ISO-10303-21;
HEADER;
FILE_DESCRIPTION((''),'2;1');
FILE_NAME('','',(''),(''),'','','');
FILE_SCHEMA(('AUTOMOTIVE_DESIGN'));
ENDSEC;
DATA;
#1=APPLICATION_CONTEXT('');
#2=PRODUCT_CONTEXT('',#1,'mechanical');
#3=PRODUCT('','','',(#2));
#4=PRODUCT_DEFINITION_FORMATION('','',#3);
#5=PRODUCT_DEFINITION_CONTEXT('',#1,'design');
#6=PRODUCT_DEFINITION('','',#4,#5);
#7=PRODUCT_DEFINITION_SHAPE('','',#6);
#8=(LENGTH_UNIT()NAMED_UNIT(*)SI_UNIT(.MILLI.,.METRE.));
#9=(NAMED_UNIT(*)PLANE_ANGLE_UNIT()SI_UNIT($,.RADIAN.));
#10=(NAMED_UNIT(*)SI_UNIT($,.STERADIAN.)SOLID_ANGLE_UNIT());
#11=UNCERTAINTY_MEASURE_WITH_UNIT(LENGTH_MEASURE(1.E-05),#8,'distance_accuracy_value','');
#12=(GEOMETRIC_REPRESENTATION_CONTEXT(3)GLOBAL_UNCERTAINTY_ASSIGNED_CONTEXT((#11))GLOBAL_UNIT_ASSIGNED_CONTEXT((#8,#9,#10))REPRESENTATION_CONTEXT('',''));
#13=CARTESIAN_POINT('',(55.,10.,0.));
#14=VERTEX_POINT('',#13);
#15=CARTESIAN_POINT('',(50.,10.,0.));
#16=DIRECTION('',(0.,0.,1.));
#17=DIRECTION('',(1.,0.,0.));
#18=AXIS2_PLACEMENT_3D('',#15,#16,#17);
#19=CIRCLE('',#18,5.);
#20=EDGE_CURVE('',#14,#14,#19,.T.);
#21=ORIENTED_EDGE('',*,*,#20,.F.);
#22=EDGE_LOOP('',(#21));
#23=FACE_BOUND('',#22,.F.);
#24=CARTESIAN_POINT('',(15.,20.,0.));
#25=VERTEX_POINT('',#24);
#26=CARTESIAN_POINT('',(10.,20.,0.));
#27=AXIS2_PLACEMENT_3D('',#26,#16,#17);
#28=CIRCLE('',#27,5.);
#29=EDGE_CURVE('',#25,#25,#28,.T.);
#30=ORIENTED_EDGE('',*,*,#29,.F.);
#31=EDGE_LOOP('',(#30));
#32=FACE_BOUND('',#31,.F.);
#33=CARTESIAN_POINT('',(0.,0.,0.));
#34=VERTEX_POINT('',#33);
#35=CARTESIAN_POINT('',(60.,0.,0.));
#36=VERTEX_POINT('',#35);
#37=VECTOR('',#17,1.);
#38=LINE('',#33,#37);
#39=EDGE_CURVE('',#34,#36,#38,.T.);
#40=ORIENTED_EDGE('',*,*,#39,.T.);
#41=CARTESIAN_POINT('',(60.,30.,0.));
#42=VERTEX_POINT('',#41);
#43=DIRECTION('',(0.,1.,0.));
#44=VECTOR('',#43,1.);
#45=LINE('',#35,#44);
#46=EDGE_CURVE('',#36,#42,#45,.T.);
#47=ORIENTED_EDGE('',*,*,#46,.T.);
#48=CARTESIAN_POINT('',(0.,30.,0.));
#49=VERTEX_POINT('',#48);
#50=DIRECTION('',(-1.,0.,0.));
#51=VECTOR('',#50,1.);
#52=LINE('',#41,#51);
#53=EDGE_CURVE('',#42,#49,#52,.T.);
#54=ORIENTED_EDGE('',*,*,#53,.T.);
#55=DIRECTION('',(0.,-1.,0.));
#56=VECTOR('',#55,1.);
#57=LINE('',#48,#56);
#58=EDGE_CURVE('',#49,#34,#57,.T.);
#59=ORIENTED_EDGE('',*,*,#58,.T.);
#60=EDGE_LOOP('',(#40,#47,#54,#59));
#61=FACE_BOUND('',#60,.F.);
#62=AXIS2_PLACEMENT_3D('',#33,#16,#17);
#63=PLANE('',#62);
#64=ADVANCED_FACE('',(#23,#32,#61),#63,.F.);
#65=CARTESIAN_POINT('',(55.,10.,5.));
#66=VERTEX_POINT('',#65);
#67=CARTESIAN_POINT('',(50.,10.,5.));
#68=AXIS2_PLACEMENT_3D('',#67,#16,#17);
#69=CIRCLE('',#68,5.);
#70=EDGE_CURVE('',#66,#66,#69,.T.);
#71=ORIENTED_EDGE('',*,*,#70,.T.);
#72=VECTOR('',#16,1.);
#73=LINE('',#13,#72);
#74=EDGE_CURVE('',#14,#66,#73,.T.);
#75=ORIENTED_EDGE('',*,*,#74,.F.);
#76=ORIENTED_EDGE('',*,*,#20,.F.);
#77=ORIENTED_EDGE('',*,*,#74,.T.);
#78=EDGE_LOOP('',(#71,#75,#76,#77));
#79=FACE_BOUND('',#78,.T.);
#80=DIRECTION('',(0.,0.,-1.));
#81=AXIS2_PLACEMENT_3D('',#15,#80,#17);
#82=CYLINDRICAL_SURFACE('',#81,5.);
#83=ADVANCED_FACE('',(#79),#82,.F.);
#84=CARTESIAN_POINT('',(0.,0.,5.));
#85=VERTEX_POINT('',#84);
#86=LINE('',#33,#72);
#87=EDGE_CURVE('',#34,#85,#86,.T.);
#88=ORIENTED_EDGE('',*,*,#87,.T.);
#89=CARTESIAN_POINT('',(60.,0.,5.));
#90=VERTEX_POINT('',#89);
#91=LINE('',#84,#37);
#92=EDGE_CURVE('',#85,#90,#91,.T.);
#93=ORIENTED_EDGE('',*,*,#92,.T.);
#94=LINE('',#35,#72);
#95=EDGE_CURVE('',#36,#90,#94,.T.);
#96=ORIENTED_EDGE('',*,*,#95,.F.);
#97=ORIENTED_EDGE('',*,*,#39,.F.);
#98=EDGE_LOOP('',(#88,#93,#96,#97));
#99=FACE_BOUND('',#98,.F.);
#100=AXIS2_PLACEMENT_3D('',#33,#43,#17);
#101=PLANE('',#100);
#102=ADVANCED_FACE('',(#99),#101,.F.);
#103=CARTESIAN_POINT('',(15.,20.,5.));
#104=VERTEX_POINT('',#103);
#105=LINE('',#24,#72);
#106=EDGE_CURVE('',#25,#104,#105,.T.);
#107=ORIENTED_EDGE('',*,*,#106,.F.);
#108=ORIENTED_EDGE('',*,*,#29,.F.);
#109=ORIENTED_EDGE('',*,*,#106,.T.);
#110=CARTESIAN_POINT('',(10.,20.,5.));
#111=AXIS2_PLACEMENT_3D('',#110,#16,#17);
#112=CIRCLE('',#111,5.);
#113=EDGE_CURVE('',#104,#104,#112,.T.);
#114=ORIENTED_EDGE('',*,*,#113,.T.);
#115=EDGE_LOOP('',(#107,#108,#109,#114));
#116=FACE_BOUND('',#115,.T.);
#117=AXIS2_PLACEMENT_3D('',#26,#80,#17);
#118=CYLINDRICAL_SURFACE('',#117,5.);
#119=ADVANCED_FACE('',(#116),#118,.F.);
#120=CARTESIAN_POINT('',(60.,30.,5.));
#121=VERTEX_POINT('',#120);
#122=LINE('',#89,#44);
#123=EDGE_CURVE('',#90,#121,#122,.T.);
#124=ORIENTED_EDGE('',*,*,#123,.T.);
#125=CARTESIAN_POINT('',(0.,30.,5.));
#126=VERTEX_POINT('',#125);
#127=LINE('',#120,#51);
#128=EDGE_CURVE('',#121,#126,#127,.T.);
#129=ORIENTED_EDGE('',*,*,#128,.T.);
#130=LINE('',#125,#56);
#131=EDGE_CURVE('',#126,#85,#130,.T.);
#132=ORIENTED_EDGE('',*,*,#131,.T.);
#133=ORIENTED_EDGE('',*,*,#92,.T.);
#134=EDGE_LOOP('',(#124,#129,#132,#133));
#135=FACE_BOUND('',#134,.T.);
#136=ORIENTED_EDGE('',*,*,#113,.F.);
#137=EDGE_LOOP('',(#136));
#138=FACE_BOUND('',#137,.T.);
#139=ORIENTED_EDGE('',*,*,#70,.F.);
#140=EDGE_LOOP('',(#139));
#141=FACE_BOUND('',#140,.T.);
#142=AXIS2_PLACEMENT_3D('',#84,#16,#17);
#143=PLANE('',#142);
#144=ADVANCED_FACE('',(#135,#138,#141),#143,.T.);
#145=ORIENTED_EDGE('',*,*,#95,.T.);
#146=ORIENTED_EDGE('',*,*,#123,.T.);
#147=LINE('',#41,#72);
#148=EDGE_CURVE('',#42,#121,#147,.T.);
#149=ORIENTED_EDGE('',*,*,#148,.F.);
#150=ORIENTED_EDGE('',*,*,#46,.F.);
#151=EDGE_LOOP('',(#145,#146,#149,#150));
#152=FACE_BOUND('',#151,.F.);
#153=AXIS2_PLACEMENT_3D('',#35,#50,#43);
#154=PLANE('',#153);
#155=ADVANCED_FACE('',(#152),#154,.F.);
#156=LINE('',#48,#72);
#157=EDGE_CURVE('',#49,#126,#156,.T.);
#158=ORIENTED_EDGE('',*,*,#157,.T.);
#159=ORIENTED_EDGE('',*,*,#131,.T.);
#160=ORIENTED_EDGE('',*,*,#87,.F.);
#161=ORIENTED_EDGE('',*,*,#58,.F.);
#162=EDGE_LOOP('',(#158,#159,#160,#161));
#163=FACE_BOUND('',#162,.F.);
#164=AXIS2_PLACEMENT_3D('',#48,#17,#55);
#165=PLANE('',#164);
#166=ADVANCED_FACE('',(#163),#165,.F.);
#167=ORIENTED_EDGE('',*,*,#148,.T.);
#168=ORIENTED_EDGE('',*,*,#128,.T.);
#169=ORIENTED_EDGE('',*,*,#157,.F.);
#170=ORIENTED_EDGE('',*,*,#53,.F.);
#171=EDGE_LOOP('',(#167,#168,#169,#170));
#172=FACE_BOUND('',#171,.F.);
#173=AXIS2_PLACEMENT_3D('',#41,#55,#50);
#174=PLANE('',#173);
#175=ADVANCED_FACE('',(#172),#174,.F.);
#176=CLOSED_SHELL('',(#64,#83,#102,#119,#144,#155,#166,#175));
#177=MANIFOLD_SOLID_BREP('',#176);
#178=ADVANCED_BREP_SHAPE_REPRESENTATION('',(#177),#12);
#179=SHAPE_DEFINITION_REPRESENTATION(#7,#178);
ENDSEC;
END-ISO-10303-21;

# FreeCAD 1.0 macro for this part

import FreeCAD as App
import Part
import Sketcher
from FreeCAD import Vector


def add_polygon(sketch, points):
    """Adds a closed chain of lines whose ends are joined by coincident constraints."""
    first, n = sketch.GeometryCount, len(points)
    for a, b in zip(points, points[1:] + points[:1]):
        sketch.addGeometry(Part.LineSegment(App.Vector(*a, 0), App.Vector(*b, 0)), False)
    for i in range(n):
        sketch.addConstraint(Sketcher.Constraint("Coincident", first + i, 2, first + (i + 1) % n, 1))

doc = App.newDocument("Part")
params = doc.addObject("Spreadsheet::Sheet", "Params")
for row, (alias, value) in enumerate([
    ("sketch1_diameter", "10 mm"),
    ("sketch1_width", "60 mm"),
    ("sketch1_height", "30 mm"),
    ("pad1_length", "5 mm"),
], start=1):
    params.set(f"A{row}", alias)
    params.set(f"B{row}", "=" + value)
    params.setAlias(f"B{row}", alias)

body = doc.addObject("PartDesign::Body", "Body")

# Sketch on XY plane
sketch1 = body.newObject("Sketcher::SketchObject", "Sketch")
sketch1.AttachmentSupport = (doc.getObject("XY_Plane"), [""])
sketch1.MapMode = "FlatFace"
add_polygon(sketch1, [(0, 30), (0, 0), (60, 0), (60, 30)])  # lines 0-3
sketch1.addGeometry(Part.Circle(Vector(50, 10, 0), Vector(0, 0, 1), 5), False)  # 4
sketch1.addGeometry(Part.Circle(Vector(10, 20, 0), Vector(0, 0, 1), 5), False)  # 5
sketch1.addConstraint(Sketcher.Constraint("Vertical", 0))
sketch1.addConstraint(Sketcher.Constraint("Horizontal", 1))
sketch1.addConstraint(Sketcher.Constraint("Vertical", 2))
sketch1.addConstraint(Sketcher.Constraint("Horizontal", 3))
sketch1.addConstraint(Sketcher.Constraint("Coincident", 0, 2, -1, 1))
sketch1.addConstraint(Sketcher.Constraint("Equal", 4, 5))
sketch1.addConstraint(Sketcher.Constraint("Diameter", 4, 10.0))
sketch1.addConstraint(Sketcher.Constraint("DistanceX", 1, 1, 1, 2, 60.0))
sketch1.addConstraint(Sketcher.Constraint("DistanceY", 0, 2, 0, 1, 30.0))
sketch1.addConstraint(Sketcher.Constraint("DistanceY", -1, 1, 4, 3, 10.0))
sketch1.addConstraint(Sketcher.Constraint("DistanceX", -1, 1, 5, 3, 10.0))
sketch1.addConstraint(Sketcher.Constraint("DistanceY", 4, 3, 5, 3, 10.0))
sketch1.addConstraint(Sketcher.Constraint("DistanceX", 4, 3, 1, 2, 10.0))
sketch1.setExpression("Constraints[10]", "Params.sketch1_diameter")
sketch1.setExpression("Constraints[11]", "Params.sketch1_width")
sketch1.setExpression("Constraints[12]", "Params.sketch1_height")
pad1 = body.newObject("PartDesign::Pad", "Pad")
pad1.Profile = sketch1
pad1.setExpression("Length", "Params.pad1_length")

doc.recompute()
